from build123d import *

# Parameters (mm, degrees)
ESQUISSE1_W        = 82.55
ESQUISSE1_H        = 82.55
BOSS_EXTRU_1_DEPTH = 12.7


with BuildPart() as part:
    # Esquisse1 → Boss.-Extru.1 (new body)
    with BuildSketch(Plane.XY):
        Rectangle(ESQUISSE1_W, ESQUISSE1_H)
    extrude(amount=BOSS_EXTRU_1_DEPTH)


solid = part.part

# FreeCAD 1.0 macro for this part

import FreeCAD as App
import Part
import Sketcher

V = App.Vector
Q = App.Units.Quantity

doc = App.newDocument("Part")
params = doc.addObject("Spreadsheet::Sheet", "Params")
for row, (alias, value) in enumerate([
    ("sketch1_width", "3.25 in"),
    ("pad1_length", "0.5 in"),
], start=1):
    params.set(f"A{row}", alias)
    params.set(f"B{row}", "=" + value)
    params.setAlias(f"B{row}", alias)

body = doc.addObject("PartDesign::Body", "Body")

# Sketch on XY plane
sketch1 = body.newObject("Sketcher::SketchObject", "Sketch")
sketch1.AttachmentSupport = (doc.getObject("XY_Plane"), [""])
sketch1.MapMode = "FlatFace"
sketch1.addGeometry([
    Part.LineSegment(V(-41.275, 41.275, 0), V(-41.275, -41.275, 0)),
    Part.LineSegment(V(-41.275, -41.275, 0), V(41.275, -41.275, 0)),
    Part.LineSegment(V(41.275, -41.275, 0), V(41.275, 41.275, 0)),
    Part.LineSegment(V(41.275, 41.275, 0), V(-41.275, 41.275, 0)),
], False)
sketch1.addConstraint([
    Sketcher.Constraint("Coincident", 0, 2, 1, 1),
    Sketcher.Constraint("Coincident", 1, 2, 2, 1),
    Sketcher.Constraint("Coincident", 2, 2, 3, 1),
    Sketcher.Constraint("Coincident", 3, 2, 0, 1),
    Sketcher.Constraint("Vertical", 0),
    Sketcher.Constraint("Horizontal", 1),
    Sketcher.Constraint("Vertical", 2),
    Sketcher.Constraint("Horizontal", 3),
    Sketcher.Constraint("Symmetric", 0, 2, 2, 2, -1, 1),
    Sketcher.Constraint("Equal", 3, 0),
    Sketcher.Constraint("DistanceX", 1, 1, 1, 2, Q("3.25 in")),
])
sketch1.setExpression("Constraints[10]", "Params.sketch1_width")
pad1 = body.newObject("PartDesign::Pad", "Pad")
pad1.Profile = sketch1
pad1.setExpression("Length", "Params.pad1_length")

doc.recompute()
